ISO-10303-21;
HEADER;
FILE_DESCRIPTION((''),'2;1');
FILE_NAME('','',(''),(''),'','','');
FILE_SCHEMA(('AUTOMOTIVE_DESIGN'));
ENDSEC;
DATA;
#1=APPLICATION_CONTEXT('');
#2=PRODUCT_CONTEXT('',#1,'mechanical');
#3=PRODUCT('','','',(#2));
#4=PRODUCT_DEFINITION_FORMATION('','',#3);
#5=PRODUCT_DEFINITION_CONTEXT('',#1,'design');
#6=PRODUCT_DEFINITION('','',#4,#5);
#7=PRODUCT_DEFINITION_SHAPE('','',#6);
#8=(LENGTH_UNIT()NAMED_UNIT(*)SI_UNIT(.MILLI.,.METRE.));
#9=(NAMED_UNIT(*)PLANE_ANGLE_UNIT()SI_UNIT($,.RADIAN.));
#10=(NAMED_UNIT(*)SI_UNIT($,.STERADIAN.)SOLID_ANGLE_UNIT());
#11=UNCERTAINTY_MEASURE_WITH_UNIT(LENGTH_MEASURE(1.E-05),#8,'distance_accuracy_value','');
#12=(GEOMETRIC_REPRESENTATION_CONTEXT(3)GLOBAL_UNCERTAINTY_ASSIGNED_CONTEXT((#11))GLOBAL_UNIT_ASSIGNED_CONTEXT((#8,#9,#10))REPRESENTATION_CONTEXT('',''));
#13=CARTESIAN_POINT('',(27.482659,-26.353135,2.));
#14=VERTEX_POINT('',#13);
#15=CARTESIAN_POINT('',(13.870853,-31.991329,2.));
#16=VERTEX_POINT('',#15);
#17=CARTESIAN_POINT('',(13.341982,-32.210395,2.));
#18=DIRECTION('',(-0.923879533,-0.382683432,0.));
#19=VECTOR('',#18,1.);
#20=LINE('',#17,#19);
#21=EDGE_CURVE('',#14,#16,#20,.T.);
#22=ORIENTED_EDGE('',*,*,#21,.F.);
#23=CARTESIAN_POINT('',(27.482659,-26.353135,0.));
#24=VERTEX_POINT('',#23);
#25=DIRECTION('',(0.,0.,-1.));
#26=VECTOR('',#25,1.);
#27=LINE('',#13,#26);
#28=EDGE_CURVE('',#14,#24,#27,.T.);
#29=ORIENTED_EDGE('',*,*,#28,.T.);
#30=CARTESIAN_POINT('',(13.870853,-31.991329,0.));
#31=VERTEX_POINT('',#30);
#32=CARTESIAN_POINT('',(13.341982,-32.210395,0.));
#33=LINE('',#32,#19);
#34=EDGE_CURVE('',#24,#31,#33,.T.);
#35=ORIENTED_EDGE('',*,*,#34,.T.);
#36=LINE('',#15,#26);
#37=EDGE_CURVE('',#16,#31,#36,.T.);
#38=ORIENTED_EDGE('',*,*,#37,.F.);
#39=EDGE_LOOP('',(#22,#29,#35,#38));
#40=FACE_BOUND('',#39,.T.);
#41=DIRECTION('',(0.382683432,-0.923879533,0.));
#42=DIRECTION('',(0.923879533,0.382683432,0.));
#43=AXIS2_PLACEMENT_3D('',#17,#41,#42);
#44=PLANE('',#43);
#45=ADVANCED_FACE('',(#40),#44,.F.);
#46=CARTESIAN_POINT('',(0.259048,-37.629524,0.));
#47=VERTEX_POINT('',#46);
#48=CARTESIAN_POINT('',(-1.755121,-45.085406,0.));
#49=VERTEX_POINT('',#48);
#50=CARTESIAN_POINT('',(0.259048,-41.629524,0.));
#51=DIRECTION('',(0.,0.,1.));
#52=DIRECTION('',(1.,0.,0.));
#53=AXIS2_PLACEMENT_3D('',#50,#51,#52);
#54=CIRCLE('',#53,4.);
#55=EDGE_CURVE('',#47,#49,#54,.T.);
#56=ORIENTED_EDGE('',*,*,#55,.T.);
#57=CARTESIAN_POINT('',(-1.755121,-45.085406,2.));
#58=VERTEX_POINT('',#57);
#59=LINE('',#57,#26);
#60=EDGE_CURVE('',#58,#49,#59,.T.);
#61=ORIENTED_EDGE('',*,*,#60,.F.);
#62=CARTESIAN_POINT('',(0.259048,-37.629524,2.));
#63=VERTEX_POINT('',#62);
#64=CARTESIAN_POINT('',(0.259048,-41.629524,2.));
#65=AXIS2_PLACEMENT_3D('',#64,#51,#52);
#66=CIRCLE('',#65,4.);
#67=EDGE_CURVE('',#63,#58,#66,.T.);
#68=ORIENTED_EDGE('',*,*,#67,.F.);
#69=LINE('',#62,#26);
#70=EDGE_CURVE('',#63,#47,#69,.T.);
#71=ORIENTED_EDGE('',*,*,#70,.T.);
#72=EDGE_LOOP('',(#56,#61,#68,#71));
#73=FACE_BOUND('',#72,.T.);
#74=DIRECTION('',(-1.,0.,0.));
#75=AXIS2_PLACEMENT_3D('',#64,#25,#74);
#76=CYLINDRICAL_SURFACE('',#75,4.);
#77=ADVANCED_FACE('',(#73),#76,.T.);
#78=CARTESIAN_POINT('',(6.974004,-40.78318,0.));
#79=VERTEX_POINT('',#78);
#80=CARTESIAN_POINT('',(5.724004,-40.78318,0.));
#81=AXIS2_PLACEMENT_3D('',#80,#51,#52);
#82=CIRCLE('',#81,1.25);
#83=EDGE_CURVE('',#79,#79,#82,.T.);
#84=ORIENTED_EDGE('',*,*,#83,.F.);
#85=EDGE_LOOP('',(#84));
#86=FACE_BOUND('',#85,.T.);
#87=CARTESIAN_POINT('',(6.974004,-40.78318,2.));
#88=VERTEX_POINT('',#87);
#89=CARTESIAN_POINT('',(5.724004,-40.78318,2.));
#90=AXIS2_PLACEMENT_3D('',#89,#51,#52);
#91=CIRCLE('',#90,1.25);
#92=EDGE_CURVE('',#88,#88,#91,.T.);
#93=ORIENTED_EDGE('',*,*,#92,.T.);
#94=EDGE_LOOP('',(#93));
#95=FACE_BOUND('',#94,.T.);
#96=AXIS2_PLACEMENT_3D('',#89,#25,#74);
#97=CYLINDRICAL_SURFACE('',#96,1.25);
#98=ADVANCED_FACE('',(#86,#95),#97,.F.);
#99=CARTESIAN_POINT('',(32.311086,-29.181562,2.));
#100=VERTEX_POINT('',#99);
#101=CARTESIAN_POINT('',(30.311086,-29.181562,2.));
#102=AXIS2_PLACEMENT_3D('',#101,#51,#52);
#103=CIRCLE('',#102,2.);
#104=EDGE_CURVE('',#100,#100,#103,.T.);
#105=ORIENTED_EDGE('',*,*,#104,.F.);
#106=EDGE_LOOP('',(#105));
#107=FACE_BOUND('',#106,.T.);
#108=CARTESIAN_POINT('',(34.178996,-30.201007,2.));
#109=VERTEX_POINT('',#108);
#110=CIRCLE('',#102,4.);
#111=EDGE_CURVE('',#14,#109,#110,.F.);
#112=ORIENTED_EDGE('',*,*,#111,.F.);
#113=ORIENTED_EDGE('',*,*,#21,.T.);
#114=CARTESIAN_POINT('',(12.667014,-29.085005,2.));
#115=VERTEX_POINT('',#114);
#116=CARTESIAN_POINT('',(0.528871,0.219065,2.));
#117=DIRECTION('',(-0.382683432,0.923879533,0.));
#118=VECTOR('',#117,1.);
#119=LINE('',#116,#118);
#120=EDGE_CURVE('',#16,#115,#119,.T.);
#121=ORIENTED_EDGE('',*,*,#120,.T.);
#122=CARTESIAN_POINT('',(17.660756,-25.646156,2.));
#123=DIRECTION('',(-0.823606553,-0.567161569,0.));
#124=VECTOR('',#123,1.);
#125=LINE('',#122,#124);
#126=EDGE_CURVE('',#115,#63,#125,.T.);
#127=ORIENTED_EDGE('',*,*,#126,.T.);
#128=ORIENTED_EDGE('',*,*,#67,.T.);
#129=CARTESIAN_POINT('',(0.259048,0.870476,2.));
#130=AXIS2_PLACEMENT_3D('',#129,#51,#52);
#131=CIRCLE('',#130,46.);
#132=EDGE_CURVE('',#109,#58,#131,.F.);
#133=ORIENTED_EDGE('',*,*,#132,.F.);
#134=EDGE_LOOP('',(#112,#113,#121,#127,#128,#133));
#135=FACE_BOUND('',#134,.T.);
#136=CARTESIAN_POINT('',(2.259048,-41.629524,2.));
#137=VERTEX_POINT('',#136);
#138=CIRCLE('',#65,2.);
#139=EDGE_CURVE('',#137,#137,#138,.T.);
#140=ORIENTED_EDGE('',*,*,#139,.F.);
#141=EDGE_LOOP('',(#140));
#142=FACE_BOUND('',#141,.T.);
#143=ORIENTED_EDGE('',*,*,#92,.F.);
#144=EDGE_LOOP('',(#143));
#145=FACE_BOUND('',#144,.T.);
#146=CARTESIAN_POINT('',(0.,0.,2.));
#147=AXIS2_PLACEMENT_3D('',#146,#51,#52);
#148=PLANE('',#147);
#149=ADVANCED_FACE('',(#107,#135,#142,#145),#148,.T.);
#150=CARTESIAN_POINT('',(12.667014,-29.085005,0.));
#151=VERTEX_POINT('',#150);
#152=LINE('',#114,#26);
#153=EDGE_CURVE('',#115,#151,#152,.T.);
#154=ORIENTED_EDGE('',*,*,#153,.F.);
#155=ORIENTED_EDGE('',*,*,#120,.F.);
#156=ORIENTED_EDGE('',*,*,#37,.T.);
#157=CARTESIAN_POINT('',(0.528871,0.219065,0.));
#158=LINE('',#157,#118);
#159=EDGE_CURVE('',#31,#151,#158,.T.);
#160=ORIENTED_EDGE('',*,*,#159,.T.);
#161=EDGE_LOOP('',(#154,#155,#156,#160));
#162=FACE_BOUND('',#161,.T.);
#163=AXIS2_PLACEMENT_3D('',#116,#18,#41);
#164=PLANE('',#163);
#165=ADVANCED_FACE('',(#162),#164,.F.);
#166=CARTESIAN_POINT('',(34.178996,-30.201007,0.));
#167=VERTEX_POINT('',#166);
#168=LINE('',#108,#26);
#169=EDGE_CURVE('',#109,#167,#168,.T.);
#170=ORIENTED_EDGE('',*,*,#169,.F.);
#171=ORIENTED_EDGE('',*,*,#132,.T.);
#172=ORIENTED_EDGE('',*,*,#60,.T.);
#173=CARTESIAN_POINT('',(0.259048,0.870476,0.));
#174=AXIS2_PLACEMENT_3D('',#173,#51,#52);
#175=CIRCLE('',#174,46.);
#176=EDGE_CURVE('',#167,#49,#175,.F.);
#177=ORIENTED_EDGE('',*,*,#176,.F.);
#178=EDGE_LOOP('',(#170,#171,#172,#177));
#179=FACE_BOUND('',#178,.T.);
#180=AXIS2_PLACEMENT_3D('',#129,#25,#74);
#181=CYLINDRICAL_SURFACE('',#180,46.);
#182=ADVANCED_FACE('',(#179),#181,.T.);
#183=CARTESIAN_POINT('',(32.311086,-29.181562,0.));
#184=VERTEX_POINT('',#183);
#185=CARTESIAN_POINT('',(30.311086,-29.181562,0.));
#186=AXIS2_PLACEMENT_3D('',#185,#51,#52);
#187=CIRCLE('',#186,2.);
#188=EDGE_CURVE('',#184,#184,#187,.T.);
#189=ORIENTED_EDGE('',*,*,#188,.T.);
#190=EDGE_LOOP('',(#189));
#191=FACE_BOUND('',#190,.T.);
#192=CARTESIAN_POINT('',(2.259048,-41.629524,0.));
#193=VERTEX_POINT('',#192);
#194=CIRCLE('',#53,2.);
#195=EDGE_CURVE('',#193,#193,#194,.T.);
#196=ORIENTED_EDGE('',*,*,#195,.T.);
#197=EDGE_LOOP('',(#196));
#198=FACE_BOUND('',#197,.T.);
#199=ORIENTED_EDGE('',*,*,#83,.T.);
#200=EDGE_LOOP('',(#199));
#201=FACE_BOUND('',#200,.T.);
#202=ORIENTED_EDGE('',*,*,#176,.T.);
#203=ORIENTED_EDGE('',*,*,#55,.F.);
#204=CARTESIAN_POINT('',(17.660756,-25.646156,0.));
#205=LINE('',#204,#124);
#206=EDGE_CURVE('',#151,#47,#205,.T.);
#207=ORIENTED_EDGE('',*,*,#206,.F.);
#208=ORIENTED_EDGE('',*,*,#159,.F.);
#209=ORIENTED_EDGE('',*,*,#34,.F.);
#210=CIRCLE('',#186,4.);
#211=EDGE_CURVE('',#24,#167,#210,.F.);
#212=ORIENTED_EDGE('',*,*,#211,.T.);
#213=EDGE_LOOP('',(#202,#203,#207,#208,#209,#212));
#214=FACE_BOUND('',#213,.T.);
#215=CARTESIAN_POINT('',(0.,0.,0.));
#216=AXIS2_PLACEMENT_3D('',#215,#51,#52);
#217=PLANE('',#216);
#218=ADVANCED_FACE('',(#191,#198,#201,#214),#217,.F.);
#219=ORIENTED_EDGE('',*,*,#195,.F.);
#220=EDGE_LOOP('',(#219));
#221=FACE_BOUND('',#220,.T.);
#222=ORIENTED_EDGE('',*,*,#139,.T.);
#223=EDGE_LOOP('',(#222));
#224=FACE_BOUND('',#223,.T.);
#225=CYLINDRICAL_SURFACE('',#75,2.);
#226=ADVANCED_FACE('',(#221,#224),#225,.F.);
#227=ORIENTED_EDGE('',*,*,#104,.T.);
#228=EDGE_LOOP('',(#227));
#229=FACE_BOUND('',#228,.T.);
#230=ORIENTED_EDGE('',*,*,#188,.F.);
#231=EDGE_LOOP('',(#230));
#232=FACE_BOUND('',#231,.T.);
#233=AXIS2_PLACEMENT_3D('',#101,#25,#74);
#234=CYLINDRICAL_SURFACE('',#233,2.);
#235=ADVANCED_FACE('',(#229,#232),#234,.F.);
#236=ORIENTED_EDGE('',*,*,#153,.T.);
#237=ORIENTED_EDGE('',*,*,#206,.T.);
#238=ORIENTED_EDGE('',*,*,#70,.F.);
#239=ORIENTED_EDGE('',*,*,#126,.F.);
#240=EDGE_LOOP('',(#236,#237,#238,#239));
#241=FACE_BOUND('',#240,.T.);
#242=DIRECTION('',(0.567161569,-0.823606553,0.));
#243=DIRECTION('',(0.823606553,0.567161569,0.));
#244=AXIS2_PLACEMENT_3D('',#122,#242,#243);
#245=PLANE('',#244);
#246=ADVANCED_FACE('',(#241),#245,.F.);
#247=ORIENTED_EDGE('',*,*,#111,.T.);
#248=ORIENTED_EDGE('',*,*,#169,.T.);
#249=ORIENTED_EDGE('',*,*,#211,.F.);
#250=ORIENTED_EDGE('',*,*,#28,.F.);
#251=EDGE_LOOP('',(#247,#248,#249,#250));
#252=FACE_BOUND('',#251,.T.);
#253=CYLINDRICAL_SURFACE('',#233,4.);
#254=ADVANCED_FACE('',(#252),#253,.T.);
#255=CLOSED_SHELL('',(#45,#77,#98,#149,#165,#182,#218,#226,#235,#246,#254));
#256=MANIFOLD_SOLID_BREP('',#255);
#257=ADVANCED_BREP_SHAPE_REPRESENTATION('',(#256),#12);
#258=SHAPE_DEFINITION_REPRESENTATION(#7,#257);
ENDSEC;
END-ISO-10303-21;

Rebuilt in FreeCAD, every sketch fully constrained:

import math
import FreeCAD as App
import Part
import Sketcher
from FreeCAD import Vector
Q = App.Units.Quantity

doc = App.newDocument("Part")
body = doc.addObject("PartDesign::Body", "Body")

sketch1 = doc.addObject("Sketcher::SketchObject", "Sketch")
body.addObject(sketch1)
sketch1.AttachmentSupport = (doc.XY_Plane, [""])
sketch1.MapMode = "FlatFace"
sketch1.addGeometry(Part.LineSegment(Vector(12.7, -29.1, 0), Vector(0.3, -37.6, 0)), False)
sketch1.addGeometry(Part.ArcOfCircle(Part.Circle(Vector(0.3, -41.6, 0), Vector(0, 0, 1), 4), math.radians(90), math.radians(240)), False)
sketch1.addGeometry(Part.ArcOfCircle(Part.Circle(Vector(0.3, 0.9, 0), Vector(0, 0, 1), 46), math.radians(-93), math.radians(-42)), False)
sketch1.addGeometry(Part.ArcOfCircle(Part.Circle(Vector(30.3, -29.2, 0), Vector(0, 0, 1), 4), math.radians(-15), math.radians(135)), False)
sketch1.addGeometry(Part.LineSegment(Vector(27.5, -26.4, 0), Vector(13.9, -32, 0)), False)
sketch1.addGeometry(Part.LineSegment(Vector(13.9, -32, 0), Vector(12.7, -29.1, 0)), False)
sketch1.addGeometry(Part.Circle(Vector(0.3, -41.6, 0), Vector(0, 0, 1), 2), False)
sketch1.addGeometry(Part.Circle(Vector(5.7, -40.8, 0), Vector(0, 0, 1), 1.2), False)
sketch1.addGeometry(Part.Circle(Vector(30.3, -29.2, 0), Vector(0, 0, 1), 2), False)
sketch1.addConstraint(Sketcher.Constraint("Coincident", 0, 2, 1, 1))
sketch1.addConstraint(Sketcher.Constraint("Coincident", 1, 2, 2, 1))
sketch1.addConstraint(Sketcher.Constraint("Coincident", 2, 2, 3, 1))
sketch1.addConstraint(Sketcher.Constraint("Coincident", 3, 2, 4, 1))
sketch1.addConstraint(Sketcher.Constraint("Coincident", 4, 2, 5, 1))
sketch1.addConstraint(Sketcher.Constraint("Coincident", 5, 2, 0, 1))
sketch1.addConstraint(Sketcher.Constraint("Coincident", 6, 3, 1, 3))
sketch1.addConstraint(Sketcher.Constraint("Coincident", 8, 3, 3, 3))
sketch1.addConstraint(Sketcher.Constraint("Equal", 1, 3))
sketch1.addConstraint(Sketcher.Constraint("Equal", 6, 8))
sketch1.addConstraint(Sketcher.Constraint("Perpendicular", 4, 5))
sketch1.addConstraint(Sketcher.Constraint("Vertical", 1, 3, 2, 3))
sketch1.addConstraint(Sketcher.Constraint("Vertical", 6, 3, 0, 2))
sketch1.addConstraint(Sketcher.Constraint("Diameter", 6, 4.0))
sketch1.addConstraint(Sketcher.Constraint("Radius", 1, 4.0))
sketch1.addConstraint(Sketcher.Constraint("Radius", 2, 46.0))
sketch1.addConstraint(Sketcher.Constraint("Diameter", 7, 2.5))
sketch1.addConstraint(Sketcher.Constraint("Angle", 4, Q("-157.5 deg")))
sketch1.addConstraint(Sketcher.Constraint("DistanceY", 1, 3, 2, 3, 42.5))
sketch1.addConstraint(Sketcher.Constraint("DistanceY", 7, 3, -1, 1, 40.78318))
sketch1.addConstraint(Sketcher.Constraint("DistanceX", 1, 2, -1, 1, 1.755121))
sketch1.addConstraint(Sketcher.Constraint("DistanceX", -1, 1, 3, 2, 27.482659))
sketch1.addConstraint(Sketcher.Constraint("DistanceY", 4, 2, -1, 1, 31.991329))
sketch1.addConstraint(Sketcher.Constraint("DistanceX", 1, 3, 3, 3, 30.052038))
sketch1.addConstraint(Sketcher.Constraint("DistanceY", 1, 3, 3, 3, 12.447962))
sketch1.addConstraint(Sketcher.Constraint("DistanceX", 7, 3, 3, 3, 24.587082))
sketch1.addConstraint(Sketcher.Constraint("DistanceY", 7, 3, 3, 3, 11.601618))
sketch1.addConstraint(Sketcher.Constraint("DistanceX", 5, 2, 4, 2, 1.203839))
pad1 = doc.addObject("PartDesign::Pad", "Pad")
body.addObject(pad1)
pad1.Profile = sketch1
pad1.Length = 2

doc.recompute()
